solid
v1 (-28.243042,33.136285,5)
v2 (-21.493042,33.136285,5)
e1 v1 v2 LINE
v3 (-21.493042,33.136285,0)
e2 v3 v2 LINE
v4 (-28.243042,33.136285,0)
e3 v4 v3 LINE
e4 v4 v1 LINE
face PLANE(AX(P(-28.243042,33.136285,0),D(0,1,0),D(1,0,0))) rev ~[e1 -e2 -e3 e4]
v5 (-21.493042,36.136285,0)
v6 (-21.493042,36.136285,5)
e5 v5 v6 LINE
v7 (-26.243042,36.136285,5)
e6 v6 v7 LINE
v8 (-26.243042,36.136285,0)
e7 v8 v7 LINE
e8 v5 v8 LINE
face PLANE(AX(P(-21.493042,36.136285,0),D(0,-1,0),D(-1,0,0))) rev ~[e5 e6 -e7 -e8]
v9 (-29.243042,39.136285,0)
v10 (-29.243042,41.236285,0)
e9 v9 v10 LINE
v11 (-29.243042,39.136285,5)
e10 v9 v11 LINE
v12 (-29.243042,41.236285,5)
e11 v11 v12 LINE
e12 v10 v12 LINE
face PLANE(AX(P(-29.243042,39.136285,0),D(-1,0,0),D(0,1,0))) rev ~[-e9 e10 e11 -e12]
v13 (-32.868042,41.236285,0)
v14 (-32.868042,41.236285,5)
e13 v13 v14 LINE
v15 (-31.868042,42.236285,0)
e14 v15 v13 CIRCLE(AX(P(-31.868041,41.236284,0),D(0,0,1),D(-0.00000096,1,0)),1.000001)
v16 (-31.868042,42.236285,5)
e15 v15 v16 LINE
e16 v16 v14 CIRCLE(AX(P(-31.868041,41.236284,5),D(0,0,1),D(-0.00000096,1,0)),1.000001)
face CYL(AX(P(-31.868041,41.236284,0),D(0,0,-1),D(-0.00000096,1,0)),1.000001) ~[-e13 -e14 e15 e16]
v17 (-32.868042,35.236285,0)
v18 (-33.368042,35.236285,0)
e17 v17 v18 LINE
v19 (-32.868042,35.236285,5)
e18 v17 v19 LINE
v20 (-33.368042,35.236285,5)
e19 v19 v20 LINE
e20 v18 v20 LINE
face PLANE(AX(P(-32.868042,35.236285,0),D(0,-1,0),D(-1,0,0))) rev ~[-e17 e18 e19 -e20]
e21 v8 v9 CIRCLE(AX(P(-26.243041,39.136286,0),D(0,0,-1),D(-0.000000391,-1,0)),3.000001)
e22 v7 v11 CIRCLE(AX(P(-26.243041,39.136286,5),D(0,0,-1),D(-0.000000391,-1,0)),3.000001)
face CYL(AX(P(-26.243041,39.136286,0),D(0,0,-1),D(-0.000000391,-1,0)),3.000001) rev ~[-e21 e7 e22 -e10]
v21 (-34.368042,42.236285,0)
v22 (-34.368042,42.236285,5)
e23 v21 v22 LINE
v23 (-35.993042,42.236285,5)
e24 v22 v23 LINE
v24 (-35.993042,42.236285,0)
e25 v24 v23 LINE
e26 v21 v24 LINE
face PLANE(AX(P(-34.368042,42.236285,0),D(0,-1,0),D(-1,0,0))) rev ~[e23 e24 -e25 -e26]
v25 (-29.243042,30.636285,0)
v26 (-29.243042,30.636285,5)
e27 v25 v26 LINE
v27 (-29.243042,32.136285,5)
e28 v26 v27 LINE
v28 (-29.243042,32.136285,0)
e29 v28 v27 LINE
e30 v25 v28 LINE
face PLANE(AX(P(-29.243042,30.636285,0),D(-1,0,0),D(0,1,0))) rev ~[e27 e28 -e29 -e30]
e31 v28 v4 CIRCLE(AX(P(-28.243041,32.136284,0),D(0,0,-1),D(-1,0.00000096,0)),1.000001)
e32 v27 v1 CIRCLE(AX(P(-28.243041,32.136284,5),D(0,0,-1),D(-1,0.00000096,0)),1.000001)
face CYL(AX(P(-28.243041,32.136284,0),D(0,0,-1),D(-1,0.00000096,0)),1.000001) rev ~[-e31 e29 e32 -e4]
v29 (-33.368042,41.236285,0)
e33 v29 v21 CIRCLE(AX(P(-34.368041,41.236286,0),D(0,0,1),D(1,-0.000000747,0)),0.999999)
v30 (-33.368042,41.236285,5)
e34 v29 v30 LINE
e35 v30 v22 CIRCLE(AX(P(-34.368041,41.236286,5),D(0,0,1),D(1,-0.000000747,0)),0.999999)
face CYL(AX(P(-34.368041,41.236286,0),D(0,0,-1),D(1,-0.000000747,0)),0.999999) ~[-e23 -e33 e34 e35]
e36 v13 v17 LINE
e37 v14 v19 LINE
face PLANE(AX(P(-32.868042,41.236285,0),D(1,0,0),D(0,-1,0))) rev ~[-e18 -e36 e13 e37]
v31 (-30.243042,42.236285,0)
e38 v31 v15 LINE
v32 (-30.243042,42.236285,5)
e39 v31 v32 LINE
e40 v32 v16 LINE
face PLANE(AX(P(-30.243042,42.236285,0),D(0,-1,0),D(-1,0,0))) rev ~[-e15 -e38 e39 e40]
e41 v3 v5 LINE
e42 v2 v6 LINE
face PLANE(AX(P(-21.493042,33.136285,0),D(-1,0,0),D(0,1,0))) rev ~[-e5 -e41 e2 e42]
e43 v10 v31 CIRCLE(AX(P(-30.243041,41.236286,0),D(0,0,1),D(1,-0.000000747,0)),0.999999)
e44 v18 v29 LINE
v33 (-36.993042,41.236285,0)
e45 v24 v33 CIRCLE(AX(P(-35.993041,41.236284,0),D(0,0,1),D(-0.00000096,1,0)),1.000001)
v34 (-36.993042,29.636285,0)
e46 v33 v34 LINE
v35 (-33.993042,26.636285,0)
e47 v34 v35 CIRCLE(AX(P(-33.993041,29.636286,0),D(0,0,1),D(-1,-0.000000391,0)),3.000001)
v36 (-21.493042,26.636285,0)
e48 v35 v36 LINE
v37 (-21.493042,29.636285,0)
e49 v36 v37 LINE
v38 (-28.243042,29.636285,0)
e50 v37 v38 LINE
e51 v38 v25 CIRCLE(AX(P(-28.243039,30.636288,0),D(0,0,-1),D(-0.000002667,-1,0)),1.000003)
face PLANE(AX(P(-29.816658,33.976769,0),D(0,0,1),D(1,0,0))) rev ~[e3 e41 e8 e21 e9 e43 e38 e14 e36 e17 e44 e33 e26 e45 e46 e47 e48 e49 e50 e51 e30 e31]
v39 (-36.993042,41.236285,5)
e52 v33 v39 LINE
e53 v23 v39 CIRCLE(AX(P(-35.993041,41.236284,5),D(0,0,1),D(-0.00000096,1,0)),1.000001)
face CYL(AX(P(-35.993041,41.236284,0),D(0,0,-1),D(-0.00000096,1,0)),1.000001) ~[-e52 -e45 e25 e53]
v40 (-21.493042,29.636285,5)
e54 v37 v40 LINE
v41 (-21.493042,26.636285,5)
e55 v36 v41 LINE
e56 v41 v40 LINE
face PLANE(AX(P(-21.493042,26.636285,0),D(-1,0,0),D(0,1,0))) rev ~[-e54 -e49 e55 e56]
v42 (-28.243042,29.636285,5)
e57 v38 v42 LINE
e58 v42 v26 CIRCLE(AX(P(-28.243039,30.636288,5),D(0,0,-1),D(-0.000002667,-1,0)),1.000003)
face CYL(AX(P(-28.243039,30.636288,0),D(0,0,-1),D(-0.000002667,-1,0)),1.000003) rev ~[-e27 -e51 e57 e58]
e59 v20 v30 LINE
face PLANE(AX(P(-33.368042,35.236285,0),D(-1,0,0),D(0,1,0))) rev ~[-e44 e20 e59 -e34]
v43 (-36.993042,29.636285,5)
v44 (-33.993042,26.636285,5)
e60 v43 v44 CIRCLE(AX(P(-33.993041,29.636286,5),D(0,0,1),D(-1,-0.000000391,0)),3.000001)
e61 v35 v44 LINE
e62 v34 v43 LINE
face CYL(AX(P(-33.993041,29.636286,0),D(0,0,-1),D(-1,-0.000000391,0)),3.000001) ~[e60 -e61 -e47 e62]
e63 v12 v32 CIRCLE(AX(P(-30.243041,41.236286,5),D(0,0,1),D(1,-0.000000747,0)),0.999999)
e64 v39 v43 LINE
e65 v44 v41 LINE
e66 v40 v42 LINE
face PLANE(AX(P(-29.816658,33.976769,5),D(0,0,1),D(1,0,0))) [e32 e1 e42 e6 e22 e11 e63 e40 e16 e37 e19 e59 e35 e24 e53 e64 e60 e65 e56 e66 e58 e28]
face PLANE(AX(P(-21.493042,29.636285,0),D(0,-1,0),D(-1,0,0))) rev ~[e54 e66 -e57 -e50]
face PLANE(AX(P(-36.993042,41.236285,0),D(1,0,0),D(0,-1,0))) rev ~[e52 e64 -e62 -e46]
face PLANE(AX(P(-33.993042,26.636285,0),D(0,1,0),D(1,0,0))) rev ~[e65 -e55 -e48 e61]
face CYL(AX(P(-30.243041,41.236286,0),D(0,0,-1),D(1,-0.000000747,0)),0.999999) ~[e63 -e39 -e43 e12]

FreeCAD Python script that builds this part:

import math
import FreeCAD as App
import Part
import Sketcher

doc = App.newDocument("Part")
params = doc.addObject("Spreadsheet::Sheet", "Params")
for row, (alias, value) in enumerate([
    ("sketch1_radius", "1.000001 mm"),
    ("sketch1_radius2", "3.000001 mm"),
    ("sketch1_height", "6 mm"),
    ("sketch1_width", "12.5 mm"),
    ("sketch1_width2", "0.5 mm"),
    ("pad1_length", "5 mm"),
], start=1):
    params.set(f"A{row}", alias)
    params.set(f"B{row}", "=" + value)
    params.setAlias(f"B{row}", alias)

body = doc.addObject("PartDesign::Body", "Body")

sketch1 = body.newObject("Sketcher::SketchObject", "Sketch")
sketch1.AttachmentSupport = (doc.getObject("XY_Plane"), [""])
sketch1.MapMode = "FlatFace"
sketch1.addGeometry([
    Part.LineSegment(App.Vector(-34.4, 42.2, 0), App.Vector(-36, 42.2, 0)),
    Part.ArcOfCircle(Part.Circle(App.Vector(-36, 41.2, 0), App.Vector(0, 0, 1), 1), math.radians(90), math.radians(180)),
    Part.LineSegment(App.Vector(-37, 41.2, 0), App.Vector(-37, 29.6, 0)),
    Part.ArcOfCircle(Part.Circle(App.Vector(-34, 29.6, 0), App.Vector(0, 0, 1), 3), math.radians(-180), math.radians(-90)),
    Part.LineSegment(App.Vector(-34, 26.6, 0), App.Vector(-21.5, 26.6, 0)),
    Part.LineSegment(App.Vector(-21.5, 26.6, 0), App.Vector(-21.5, 29.6, 0)),
    Part.LineSegment(App.Vector(-21.5, 29.6, 0), App.Vector(-28.2, 29.6, 0)),
    Part.ArcOfCircle(Part.Circle(App.Vector(-28.2, 30.6, 0), App.Vector(0, 0, 1), 1), math.radians(-180), math.radians(-90)),
    Part.LineSegment(App.Vector(-29.2, 30.6, 0), App.Vector(-29.2, 32.1, 0)),
    Part.ArcOfCircle(Part.Circle(App.Vector(-28.2, 32.1, 0), App.Vector(0, 0, 1), 1), math.radians(90), math.radians(180)),
    Part.LineSegment(App.Vector(-28.2, 33.1, 0), App.Vector(-21.5, 33.1, 0)),
    Part.LineSegment(App.Vector(-21.5, 33.1, 0), App.Vector(-21.5, 36.1, 0)),
    Part.LineSegment(App.Vector(-21.5, 36.1, 0), App.Vector(-26.2, 36.1, 0)),
    Part.ArcOfCircle(Part.Circle(App.Vector(-26.2, 39.1, 0), App.Vector(0, 0, 1), 3), math.radians(-180), math.radians(-90)),
    Part.LineSegment(App.Vector(-29.2, 39.1, 0), App.Vector(-29.2, 41.2, 0)),
    Part.ArcOfCircle(Part.Circle(App.Vector(-30.2, 41.2, 0), App.Vector(0, 0, 1), 1), math.radians(0), math.radians(90)),
    Part.LineSegment(App.Vector(-30.2, 42.2, 0), App.Vector(-31.9, 42.2, 0)),
    Part.ArcOfCircle(Part.Circle(App.Vector(-31.9, 41.2, 0), App.Vector(0, 0, 1), 1), math.radians(90), math.radians(180)),
    Part.LineSegment(App.Vector(-32.9, 41.2, 0), App.Vector(-32.9, 35.2, 0)),
    Part.LineSegment(App.Vector(-32.9, 35.2, 0), App.Vector(-33.4, 35.2, 0)),
    Part.LineSegment(App.Vector(-33.4, 35.2, 0), App.Vector(-33.4, 41.2, 0)),
    Part.ArcOfCircle(Part.Circle(App.Vector(-34.4, 41.2, 0), App.Vector(0, 0, 1), 1), math.radians(0), math.radians(90)),
], False)
sketch1.addConstraint([
    Sketcher.Constraint("Tangent", 0, 2, 1, 1),
    Sketcher.Constraint("Tangent", 1, 2, 2, 1),
    Sketcher.Constraint("Tangent", 2, 2, 3, 1),
    Sketcher.Constraint("Tangent", 3, 2, 4, 1),
    Sketcher.Constraint("Coincident", 4, 2, 5, 1),
    Sketcher.Constraint("Coincident", 5, 2, 6, 1),
    Sketcher.Constraint("Coincident", 6, 2, 7, 2),
    Sketcher.Constraint("Coincident", 7, 1, 8, 1),
    Sketcher.Constraint("Tangent", 8, 2, 9, 2),
    Sketcher.Constraint("Tangent", 9, 1, 10, 1),
    Sketcher.Constraint("Coincident", 10, 2, 11, 1),
    Sketcher.Constraint("Coincident", 11, 2, 12, 1),
    Sketcher.Constraint("Tangent", 12, 2, 13, 2),
    Sketcher.Constraint("Tangent", 13, 1, 14, 1),
    Sketcher.Constraint("Tangent", 14, 2, 15, 1),
    Sketcher.Constraint("Tangent", 15, 2, 16, 1),
    Sketcher.Constraint("Tangent", 16, 2, 17, 1),
    Sketcher.Constraint("Tangent", 17, 2, 18, 1),
    Sketcher.Constraint("Coincident", 18, 2, 19, 1),
    Sketcher.Constraint("Coincident", 19, 2, 20, 1),
    Sketcher.Constraint("Tangent", 20, 2, 21, 1),
    Sketcher.Constraint("Tangent", 21, 2, 0, 1),
    Sketcher.Constraint("Horizontal", 0),
    Sketcher.Constraint("Vertical", 2),
    Sketcher.Constraint("Horizontal", 4),
    Sketcher.Constraint("Vertical", 5),
    Sketcher.Constraint("Horizontal", 6),
    Sketcher.Constraint("Vertical", 8),
    Sketcher.Constraint("Horizontal", 10),
    Sketcher.Constraint("Vertical", 11),
    Sketcher.Constraint("Horizontal", 12),
    Sketcher.Constraint("Vertical", 14),
    Sketcher.Constraint("Horizontal", 16),
    Sketcher.Constraint("Vertical", 18),
    Sketcher.Constraint("Horizontal", 19),
    Sketcher.Constraint("Vertical", 20),
    Sketcher.Constraint("Equal", 1, 7),
    Sketcher.Constraint("Equal", 7, 9),
    Sketcher.Constraint("Equal", 3, 13),
    Sketcher.Constraint("Equal", 9, 15),
    Sketcher.Constraint("Equal", 15, 17),
    Sketcher.Constraint("Equal", 17, 21),
    Sketcher.Constraint("Horizontal", 1, 3, 15, 3),
    Sketcher.Constraint("Horizontal", 2, 2, 5, 2),
    Sketcher.Constraint("Vertical", 9, 3, 6, 2),
    Sketcher.Constraint("Vertical", 5, 2, 10, 2),
    Sketcher.Constraint("Vertical", 8, 2, 13, 1),
    Sketcher.Constraint("Equal", 0, 16),
    Sketcher.Constraint("Equal", 5, 11),
    Sketcher.Constraint("Radius", 1, 1.000001),
    Sketcher.Constraint("Radius", 3, 3.000001),
    Sketcher.Constraint("DistanceY", 18, 2, 18, 1, 6.0),
    Sketcher.Constraint("DistanceX", 4, 1, 4, 2, 12.5),
    Sketcher.Constraint("DistanceX", 19, 2, 19, 1, 0.5),
    Sketcher.Constraint("DistanceY", 2, 2, 2, 1, 11.6),
    Sketcher.Constraint("DistanceY", 8, 1, 8, 2, 1.5),
    Sketcher.Constraint("DistanceY", 14, 1, 14, 2, 2.1),
    Sketcher.Constraint("DistanceX", 6, 2, 6, 1, 6.75),
    Sketcher.Constraint("DistanceX", 1, 3, -1, 1, 35.993041),
    Sketcher.Constraint("DistanceY", -1, 1, 1, 3, 41.236284),
])
sketch1.setExpression("Constraints[49]", "Params.sketch1_radius")
sketch1.setExpression("Constraints[50]", "Params.sketch1_radius2")
sketch1.setExpression("Constraints[51]", "Params.sketch1_height")
sketch1.setExpression("Constraints[52]", "Params.sketch1_width")
sketch1.setExpression("Constraints[53]", "Params.sketch1_width2")
pad1 = body.newObject("PartDesign::Pad", "Pad")
pad1.Profile = sketch1
pad1.setExpression("Length", "Params.pad1_length")

doc.recompute()
